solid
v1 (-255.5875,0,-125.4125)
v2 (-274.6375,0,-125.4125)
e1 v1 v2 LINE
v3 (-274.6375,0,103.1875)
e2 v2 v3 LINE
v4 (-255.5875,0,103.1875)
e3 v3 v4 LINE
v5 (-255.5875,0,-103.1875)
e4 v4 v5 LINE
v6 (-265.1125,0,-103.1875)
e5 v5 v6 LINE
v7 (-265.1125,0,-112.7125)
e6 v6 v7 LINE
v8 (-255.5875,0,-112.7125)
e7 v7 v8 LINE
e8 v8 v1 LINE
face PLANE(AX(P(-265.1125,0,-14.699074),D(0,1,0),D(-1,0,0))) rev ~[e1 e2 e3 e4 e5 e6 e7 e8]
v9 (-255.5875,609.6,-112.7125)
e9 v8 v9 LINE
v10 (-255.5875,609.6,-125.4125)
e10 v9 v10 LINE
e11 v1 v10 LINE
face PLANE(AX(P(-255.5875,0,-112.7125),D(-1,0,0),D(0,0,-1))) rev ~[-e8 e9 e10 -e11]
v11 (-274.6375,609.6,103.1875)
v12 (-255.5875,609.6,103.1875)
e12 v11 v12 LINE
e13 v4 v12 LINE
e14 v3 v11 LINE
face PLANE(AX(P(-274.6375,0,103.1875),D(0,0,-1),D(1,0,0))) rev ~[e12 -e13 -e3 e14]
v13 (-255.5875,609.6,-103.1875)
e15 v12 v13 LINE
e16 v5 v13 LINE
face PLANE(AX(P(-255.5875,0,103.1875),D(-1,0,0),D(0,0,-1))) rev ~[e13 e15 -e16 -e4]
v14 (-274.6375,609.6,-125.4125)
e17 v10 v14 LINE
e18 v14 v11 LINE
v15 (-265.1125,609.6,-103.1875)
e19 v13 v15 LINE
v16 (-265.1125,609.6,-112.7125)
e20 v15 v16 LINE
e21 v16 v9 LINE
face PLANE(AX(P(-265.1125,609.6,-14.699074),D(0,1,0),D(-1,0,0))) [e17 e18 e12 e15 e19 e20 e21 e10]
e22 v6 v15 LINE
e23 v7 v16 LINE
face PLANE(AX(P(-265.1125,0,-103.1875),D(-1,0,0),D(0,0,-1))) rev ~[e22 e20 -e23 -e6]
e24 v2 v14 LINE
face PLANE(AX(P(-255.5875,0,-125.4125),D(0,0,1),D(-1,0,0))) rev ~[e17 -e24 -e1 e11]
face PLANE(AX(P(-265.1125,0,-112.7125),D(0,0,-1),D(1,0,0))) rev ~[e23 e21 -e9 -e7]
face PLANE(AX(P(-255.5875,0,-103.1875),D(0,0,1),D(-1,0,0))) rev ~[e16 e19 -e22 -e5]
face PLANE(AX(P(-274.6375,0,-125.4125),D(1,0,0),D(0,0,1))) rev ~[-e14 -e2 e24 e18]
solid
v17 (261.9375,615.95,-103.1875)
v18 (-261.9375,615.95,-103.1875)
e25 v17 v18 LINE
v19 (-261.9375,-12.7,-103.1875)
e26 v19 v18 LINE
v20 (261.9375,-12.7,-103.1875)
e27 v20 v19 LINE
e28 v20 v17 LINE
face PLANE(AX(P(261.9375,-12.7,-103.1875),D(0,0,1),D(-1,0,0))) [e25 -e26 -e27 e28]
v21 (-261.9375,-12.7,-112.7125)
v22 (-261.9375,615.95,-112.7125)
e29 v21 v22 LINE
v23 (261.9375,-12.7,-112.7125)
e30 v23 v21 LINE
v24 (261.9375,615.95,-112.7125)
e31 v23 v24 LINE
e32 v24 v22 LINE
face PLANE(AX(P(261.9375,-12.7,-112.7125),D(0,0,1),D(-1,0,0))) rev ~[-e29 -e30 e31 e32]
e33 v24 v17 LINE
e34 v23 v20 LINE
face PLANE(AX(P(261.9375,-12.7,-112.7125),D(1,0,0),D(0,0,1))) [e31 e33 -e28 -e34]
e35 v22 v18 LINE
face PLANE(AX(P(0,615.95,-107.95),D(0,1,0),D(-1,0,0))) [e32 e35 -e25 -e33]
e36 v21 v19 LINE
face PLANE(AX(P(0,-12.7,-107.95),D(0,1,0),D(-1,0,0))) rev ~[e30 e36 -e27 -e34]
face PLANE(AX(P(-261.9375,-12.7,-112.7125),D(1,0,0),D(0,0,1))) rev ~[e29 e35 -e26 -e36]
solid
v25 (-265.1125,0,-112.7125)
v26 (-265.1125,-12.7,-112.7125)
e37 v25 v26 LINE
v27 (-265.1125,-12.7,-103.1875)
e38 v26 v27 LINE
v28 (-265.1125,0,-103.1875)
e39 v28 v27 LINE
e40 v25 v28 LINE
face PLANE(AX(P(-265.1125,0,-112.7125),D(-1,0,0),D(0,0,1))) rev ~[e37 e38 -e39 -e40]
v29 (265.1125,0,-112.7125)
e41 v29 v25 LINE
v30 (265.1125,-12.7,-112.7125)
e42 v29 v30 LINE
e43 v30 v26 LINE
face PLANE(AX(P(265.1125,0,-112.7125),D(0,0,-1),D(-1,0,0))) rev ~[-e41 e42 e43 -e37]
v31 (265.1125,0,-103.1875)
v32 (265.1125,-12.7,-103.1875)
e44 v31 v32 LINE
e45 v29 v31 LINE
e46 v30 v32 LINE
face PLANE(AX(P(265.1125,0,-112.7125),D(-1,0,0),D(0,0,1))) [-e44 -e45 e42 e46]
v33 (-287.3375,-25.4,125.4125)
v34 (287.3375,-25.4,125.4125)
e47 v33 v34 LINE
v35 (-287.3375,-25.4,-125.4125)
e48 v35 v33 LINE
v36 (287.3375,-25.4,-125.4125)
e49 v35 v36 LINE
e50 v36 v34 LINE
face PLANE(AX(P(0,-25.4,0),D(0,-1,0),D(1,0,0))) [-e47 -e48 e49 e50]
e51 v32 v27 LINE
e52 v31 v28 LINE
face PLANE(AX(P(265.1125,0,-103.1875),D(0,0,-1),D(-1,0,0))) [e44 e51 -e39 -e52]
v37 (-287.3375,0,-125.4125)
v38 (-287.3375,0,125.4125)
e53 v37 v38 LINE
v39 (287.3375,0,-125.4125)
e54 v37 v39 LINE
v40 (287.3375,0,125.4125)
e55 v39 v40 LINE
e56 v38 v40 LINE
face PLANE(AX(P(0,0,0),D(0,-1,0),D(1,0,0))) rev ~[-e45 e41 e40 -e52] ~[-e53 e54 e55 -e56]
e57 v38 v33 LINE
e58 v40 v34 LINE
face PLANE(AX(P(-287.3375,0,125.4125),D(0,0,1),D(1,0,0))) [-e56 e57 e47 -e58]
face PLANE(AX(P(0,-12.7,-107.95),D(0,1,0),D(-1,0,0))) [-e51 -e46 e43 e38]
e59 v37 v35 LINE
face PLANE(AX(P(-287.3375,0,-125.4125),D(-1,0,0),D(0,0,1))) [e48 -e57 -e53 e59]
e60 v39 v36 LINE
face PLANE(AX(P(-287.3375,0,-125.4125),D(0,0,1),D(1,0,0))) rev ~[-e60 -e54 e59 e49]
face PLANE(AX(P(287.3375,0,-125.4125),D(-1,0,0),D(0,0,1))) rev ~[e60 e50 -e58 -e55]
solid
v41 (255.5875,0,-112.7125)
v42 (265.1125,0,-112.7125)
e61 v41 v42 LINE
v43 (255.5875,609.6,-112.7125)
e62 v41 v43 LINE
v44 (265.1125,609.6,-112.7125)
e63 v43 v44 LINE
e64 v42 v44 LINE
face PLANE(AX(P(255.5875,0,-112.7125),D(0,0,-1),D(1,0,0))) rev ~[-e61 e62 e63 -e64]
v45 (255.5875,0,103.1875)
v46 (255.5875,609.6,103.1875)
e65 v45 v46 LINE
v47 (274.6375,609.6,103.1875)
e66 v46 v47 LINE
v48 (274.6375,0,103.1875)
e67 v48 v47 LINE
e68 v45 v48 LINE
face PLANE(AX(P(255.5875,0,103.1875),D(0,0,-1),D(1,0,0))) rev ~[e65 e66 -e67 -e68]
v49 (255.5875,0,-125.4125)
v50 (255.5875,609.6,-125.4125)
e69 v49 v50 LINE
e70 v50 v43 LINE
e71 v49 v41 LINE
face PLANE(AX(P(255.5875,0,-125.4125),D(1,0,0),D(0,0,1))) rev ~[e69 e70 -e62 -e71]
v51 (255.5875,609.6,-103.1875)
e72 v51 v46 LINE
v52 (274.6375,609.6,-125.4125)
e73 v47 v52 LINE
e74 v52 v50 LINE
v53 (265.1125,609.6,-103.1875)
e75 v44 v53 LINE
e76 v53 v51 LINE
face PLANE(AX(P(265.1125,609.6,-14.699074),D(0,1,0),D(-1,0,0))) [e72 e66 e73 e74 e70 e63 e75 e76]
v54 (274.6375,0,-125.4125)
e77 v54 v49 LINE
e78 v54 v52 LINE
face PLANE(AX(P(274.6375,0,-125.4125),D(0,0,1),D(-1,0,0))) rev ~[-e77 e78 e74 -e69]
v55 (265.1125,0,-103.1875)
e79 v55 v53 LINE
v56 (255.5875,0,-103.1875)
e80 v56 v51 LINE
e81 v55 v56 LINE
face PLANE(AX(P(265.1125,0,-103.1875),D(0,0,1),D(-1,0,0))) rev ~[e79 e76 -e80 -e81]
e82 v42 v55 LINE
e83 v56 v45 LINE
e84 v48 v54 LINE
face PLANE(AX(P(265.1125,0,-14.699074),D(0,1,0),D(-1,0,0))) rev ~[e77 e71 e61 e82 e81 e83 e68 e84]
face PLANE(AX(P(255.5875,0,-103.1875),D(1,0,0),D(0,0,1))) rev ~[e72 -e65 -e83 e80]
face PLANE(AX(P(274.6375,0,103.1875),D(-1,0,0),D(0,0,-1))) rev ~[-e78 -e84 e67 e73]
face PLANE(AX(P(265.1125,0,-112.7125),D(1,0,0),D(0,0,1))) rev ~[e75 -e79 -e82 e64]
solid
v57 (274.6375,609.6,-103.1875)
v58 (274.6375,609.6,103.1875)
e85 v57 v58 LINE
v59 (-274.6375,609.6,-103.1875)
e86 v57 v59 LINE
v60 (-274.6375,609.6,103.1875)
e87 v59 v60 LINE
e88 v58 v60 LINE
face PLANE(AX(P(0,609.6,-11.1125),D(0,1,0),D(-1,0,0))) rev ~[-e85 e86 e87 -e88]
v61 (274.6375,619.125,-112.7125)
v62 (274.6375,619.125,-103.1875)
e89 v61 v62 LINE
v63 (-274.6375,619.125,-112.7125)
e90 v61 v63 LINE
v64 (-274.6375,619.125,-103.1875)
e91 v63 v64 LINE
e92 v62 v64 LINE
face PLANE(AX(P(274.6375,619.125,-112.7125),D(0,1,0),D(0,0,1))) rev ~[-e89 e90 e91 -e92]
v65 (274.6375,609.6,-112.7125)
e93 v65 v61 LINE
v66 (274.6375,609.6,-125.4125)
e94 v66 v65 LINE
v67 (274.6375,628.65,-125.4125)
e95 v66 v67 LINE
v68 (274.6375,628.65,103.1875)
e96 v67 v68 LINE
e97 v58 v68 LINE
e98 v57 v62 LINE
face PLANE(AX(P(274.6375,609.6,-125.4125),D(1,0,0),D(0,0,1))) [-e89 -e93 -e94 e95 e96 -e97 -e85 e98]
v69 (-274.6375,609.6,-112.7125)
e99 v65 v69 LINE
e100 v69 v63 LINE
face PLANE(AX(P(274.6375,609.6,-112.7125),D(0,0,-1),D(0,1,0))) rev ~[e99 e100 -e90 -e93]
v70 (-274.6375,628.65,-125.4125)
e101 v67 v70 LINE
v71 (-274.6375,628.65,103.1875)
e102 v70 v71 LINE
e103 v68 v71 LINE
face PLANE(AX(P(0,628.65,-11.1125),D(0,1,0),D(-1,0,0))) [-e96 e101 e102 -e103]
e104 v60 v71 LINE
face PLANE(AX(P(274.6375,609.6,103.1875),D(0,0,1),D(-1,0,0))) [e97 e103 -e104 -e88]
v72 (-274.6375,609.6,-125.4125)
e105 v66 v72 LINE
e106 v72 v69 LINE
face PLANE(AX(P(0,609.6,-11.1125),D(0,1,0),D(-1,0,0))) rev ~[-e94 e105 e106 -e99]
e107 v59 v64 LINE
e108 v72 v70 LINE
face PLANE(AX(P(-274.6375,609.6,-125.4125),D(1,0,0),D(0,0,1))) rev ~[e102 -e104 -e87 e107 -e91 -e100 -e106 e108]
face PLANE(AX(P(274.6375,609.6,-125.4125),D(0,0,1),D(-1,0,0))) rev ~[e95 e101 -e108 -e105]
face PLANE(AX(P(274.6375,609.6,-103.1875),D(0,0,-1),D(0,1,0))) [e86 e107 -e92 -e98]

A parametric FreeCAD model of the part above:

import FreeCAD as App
import Part
import Sketcher

V = App.Vector
Q = App.Units.Quantity

doc = App.newDocument("Part")
body = doc.addObject("PartDesign::Body", "Body")

sketch1 = body.newObject("Sketcher::SketchObject", "Sketch")
sketch1.AttachmentSupport = (doc.getObject("XZ_Plane"), [""])
sketch1.MapMode = "FlatFace"
sketch1.addGeometry([
    Part.LineSegment(V(-287, 125, 0), V(-287, -125, 0)),
    Part.LineSegment(V(-287, -125, 0), V(287, -125, 0)),
    Part.LineSegment(V(287, -125, 0), V(287, 125, 0)),
    Part.LineSegment(V(287, 125, 0), V(-287, 125, 0)),
], False)
sketch1.addConstraint([
    Sketcher.Constraint("Coincident", 0, 2, 1, 1),
    Sketcher.Constraint("Coincident", 1, 2, 2, 1),
    Sketcher.Constraint("Coincident", 2, 2, 3, 1),
    Sketcher.Constraint("Coincident", 3, 2, 0, 1),
    Sketcher.Constraint("Vertical", 0),
    Sketcher.Constraint("Horizontal", 1),
    Sketcher.Constraint("Vertical", 2),
    Sketcher.Constraint("Horizontal", 3),
    Sketcher.Constraint("Symmetric", 0, 2, 2, 2, -1, 1),
    Sketcher.Constraint("DistanceX", 1, 1, 1, 2, Q("22.625 in")),
    Sketcher.Constraint("DistanceY", 0, 2, 0, 1, Q("9.875 in")),
])
pad1 = body.newObject("PartDesign::Pad", "Pad")
pad1.Profile = sketch1
pad1.Length = Q("1 in")

sketch2 = body.newObject("Sketcher::SketchObject", "Sketch001")
sketch2.AttachmentSupport = (doc.getObject("XZ_Plane"), [""])
sketch2.MapMode = "FlatFace"
sketch2.addGeometry([
    Part.LineSegment(V(265, -103, 0), V(265, -113, 0)),
    Part.LineSegment(V(265, -113, 0), V(-265, -113, 0)),
    Part.LineSegment(V(-265, -113, 0), V(-265, -103, 0)),
    Part.LineSegment(V(-265, -103, 0), V(265, -103, 0)),
], False)
sketch2.addConstraint([
    Sketcher.Constraint("Coincident", 0, 2, 1, 1),
    Sketcher.Constraint("Coincident", 1, 2, 2, 1),
    Sketcher.Constraint("Coincident", 2, 2, 3, 1),
    Sketcher.Constraint("Coincident", 3, 2, 0, 1),
    Sketcher.Constraint("Vertical", 0),
    Sketcher.Constraint("Horizontal", 1),
    Sketcher.Constraint("Vertical", 2),
    Sketcher.Constraint("Horizontal", 3),
    Sketcher.Constraint("DistanceX", 1, 2, 1, 1, Q("20.875 in")),
    Sketcher.Constraint("DistanceY", 0, 2, 0, 1, Q("0.375 in")),
    Sketcher.Constraint("DistanceX", -1, 1, 0, 2, Q("10.4375 in")),
    Sketcher.Constraint("DistanceY", 0, 2, -1, 1, Q("4.4375 in")),
])
pocket1 = body.newObject("PartDesign::Pocket", "Pocket")
pocket1.Profile = sketch2
pocket1.Length = Q("0.5 in")
pocket1.Reversed = True
body2 = doc.addObject("PartDesign::Body", "Body001")

sketch3 = body2.newObject("Sketcher::SketchObject", "Sketch002")
sketch3.AttachmentSupport = (doc.getObject("XZ_Plane001"), [""])
sketch3.MapMode = "FlatFace"
sketch3.addGeometry([
    Part.LineSegment(V(256, 103, 0), V(275, 103, 0)),
    Part.LineSegment(V(275, 103, 0), V(275, -125, 0)),
    Part.LineSegment(V(275, -125, 0), V(256, -125, 0)),
    Part.LineSegment(V(256, -125, 0), V(256, -113, 0)),
    Part.LineSegment(V(256, -113, 0), V(265, -113, 0)),
    Part.LineSegment(V(265, -113, 0), V(265, -103, 0)),
    Part.LineSegment(V(265, -103, 0), V(256, -103, 0)),
    Part.LineSegment(V(256, -103, 0), V(256, 103, 0)),
], False)
sketch3.addConstraint([
    Sketcher.Constraint("Coincident", 0, 2, 1, 1),
    Sketcher.Constraint("Coincident", 1, 2, 2, 1),
    Sketcher.Constraint("Coincident", 2, 2, 3, 1),
    Sketcher.Constraint("Coincident", 3, 2, 4, 1),
    Sketcher.Constraint("Coincident", 4, 2, 5, 1),
    Sketcher.Constraint("Coincident", 5, 2, 6, 1),
    Sketcher.Constraint("Coincident", 6, 2, 7, 1),
    Sketcher.Constraint("Coincident", 7, 2, 0, 1),
    Sketcher.Constraint("Horizontal", 0),
    Sketcher.Constraint("Vertical", 1),
    Sketcher.Constraint("Horizontal", 2),
    Sketcher.Constraint("Vertical", 3),
    Sketcher.Constraint("Horizontal", 4),
    Sketcher.Constraint("Vertical", 5),
    Sketcher.Constraint("Horizontal", 6),
    Sketcher.Constraint("Vertical", 7),
    Sketcher.Constraint("Vertical", 3, 2, 6, 2),
    Sketcher.Constraint("Equal", 6, 5),
    Sketcher.Constraint("DistanceY", 1, 2, 1, 1, Q("9 in")),
    Sketcher.Constraint("DistanceY", 3, 1, 3, 2, Q("0.5 in")),
    Sketcher.Constraint("DistanceX", 0, 1, 0, 2, Q("0.75 in")),
    Sketcher.Constraint("DistanceX", 4, 1, 4, 2, Q("0.375 in")),
    Sketcher.Constraint("DistanceX", -1, 1, 0, 2, Q("10.8125 in")),
    Sketcher.Constraint("DistanceY", -1, 1, 0, 2, Q("4.0625 in")),
])
pad2 = body2.newObject("PartDesign::Pad", "Pad001")
pad2.Profile = sketch3
pad2.Length = Q("24 in")
pad2.Reversed = True
body3 = doc.addObject("PartDesign::Body", "Body002")

sketch4 = body3.newObject("Sketcher::SketchObject", "Sketch003")
sketch4.AttachmentSupport = (doc.getObject("XZ_Plane002"), [""])
sketch4.MapMode = "FlatFace"
sketch4.addGeometry([
    Part.LineSegment(V(-275, -125, 0), V(-275, 103, 0)),
    Part.LineSegment(V(-275, 103, 0), V(-256, 103, 0)),
    Part.LineSegment(V(-256, 103, 0), V(-256, -103, 0)),
    Part.LineSegment(V(-256, -103, 0), V(-265, -103, 0)),
    Part.LineSegment(V(-265, -103, 0), V(-265, -113, 0)),
    Part.LineSegment(V(-265, -113, 0), V(-256, -113, 0)),
    Part.LineSegment(V(-256, -113, 0), V(-256, -125, 0)),
    Part.LineSegment(V(-256, -125, 0), V(-275, -125, 0)),
], False)
sketch4.addConstraint([
    Sketcher.Constraint("Coincident", 0, 2, 1, 1),
    Sketcher.Constraint("Coincident", 1, 2, 2, 1),
    Sketcher.Constraint("Coincident", 2, 2, 3, 1),
    Sketcher.Constraint("Coincident", 3, 2, 4, 1),
    Sketcher.Constraint("Coincident", 4, 2, 5, 1),
    Sketcher.Constraint("Coincident", 5, 2, 6, 1),
    Sketcher.Constraint("Coincident", 6, 2, 7, 1),
    Sketcher.Constraint("Coincident", 7, 2, 0, 1),
    Sketcher.Constraint("Vertical", 0),
    Sketcher.Constraint("Horizontal", 1),
    Sketcher.Constraint("Vertical", 2),
    Sketcher.Constraint("Horizontal", 3),
    Sketcher.Constraint("Vertical", 4),
    Sketcher.Constraint("Horizontal", 5),
    Sketcher.Constraint("Vertical", 6),
    Sketcher.Constraint("Horizontal", 7),
    Sketcher.Constraint("Vertical", 2, 2, 5, 2),
    Sketcher.Constraint("Equal", 5, 4),
    Sketcher.Constraint("DistanceY", 0, 1, 0, 2, Q("9 in")),
    Sketcher.Constraint("DistanceY", 6, 2, 6, 1, Q("0.5 in")),
    Sketcher.Constraint("DistanceX", 1, 1, 1, 2, Q("0.75 in")),
    Sketcher.Constraint("DistanceX", 3, 2, 3, 1, Q("0.375 in")),
    Sketcher.Constraint("DistanceX", 0, 2, -1, 1, Q("10.8125 in")),
    Sketcher.Constraint("DistanceY", -1, 1, 0, 2, Q("4.0625 in")),
])
pad3 = body3.newObject("PartDesign::Pad", "Pad002")
pad3.Profile = sketch4
pad3.Length = Q("24 in")
pad3.Reversed = True
body4 = doc.addObject("PartDesign::Body", "Body003")

sketch5 = body4.newObject("Sketcher::SketchObject", "Sketch004")
sketch5.AttachmentSupport = (doc.getObject("XZ_Plane003"), [""])
sketch5.MapMode = "FlatFace"
sketch5.AttachmentOffset = App.Placement(V(0, 0, 0.5 * 25.4), App.Rotation())
sketch5.addGeometry([
    Part.LineSegment(V(262, -103, 0), V(262, -113, 0)),
    Part.LineSegment(V(262, -113, 0), V(-262, -113, 0)),
    Part.LineSegment(V(-262, -113, 0), V(-262, -103, 0)),
    Part.LineSegment(V(-262, -103, 0), V(262, -103, 0)),
], False)
sketch5.addConstraint([
    Sketcher.Constraint("Coincident", 0, 2, 1, 1),
    Sketcher.Constraint("Coincident", 1, 2, 2, 1),
    Sketcher.Constraint("Coincident", 2, 2, 3, 1),
    Sketcher.Constraint("Coincident", 3, 2, 0, 1),
    Sketcher.Constraint("Vertical", 0),
    Sketcher.Constraint("Horizontal", 1),
    Sketcher.Constraint("Vertical", 2),
    Sketcher.Constraint("Horizontal", 3),
    Sketcher.Constraint("DistanceX", 1, 2, 1, 1, Q("20.625 in")),
    Sketcher.Constraint("DistanceY", 0, 2, 0, 1, Q("0.375 in")),
    Sketcher.Constraint("DistanceX", -1, 1, 0, 2, Q("10.3125 in")),
    Sketcher.Constraint("DistanceY", 0, 2, -1, 1, Q("4.4375 in")),
])
pad4 = body4.newObject("PartDesign::Pad", "Pad003")
pad4.Profile = sketch5
pad4.Length = Q("24.75 in")
pad4.Reversed = True
body5 = doc.addObject("PartDesign::Body", "Body004")

sketch6 = body5.newObject("Sketcher::SketchObject", "Sketch005")
sketch6.AttachmentSupport = (doc.getObject("XZ_Plane004"), [""])
sketch6.MapMode = "FlatFace"
sketch6.AttachmentOffset = App.Placement(V(0, 0, -24 * 25.4), App.Rotation())
sketch6.addGeometry([
    Part.LineSegment(V(275, 103, 0), V(275, -125, 0)),
    Part.LineSegment(V(275, -125, 0), V(-275, -125, 0)),
    Part.LineSegment(V(-275, -125, 0), V(-275, 103, 0)),
    Part.LineSegment(V(-275, 103, 0), V(275, 103, 0)),
], False)
sketch6.addConstraint([
    Sketcher.Constraint("Coincident", 0, 2, 1, 1),
    Sketcher.Constraint("Coincident", 1, 2, 2, 1),
    Sketcher.Constraint("Coincident", 2, 2, 3, 1),
    Sketcher.Constraint("Coincident", 3, 2, 0, 1),
    Sketcher.Constraint("Vertical", 0),
    Sketcher.Constraint("Horizontal", 1),
    Sketcher.Constraint("Vertical", 2),
    Sketcher.Constraint("Horizontal", 3),
    Sketcher.Constraint("DistanceY", 0, 2, 0, 1, Q("9 in")),
    Sketcher.Constraint("DistanceX", 1, 2, 1, 1, Q("21.625 in")),
    Sketcher.Constraint("DistanceX", -1, 1, 0, 2, Q("10.8125 in")),
    Sketcher.Constraint("DistanceY", 0, 2, -1, 1, Q("4.9375 in")),
])
pad5 = body5.newObject("PartDesign::Pad", "Pad004")
pad5.Profile = sketch6
pad5.Length = Q("0.75 in")
pad5.Reversed = True

sketch7 = body5.newObject("Sketcher::SketchObject", "Sketch006")
sketch7.AttachmentSupport = (doc.getObject("YZ_Plane004"), [""])
sketch7.MapMode = "FlatFace"
sketch7.AttachmentOffset = App.Placement(V(0, 0, 10.8125 * 25.4), App.Rotation())
sketch7.addGeometry([
    Part.LineSegment(V(610, -103, 0), V(610, -113, 0)),
    Part.LineSegment(V(610, -113, 0), V(619, -113, 0)),
    Part.LineSegment(V(619, -113, 0), V(619, -103, 0)),
    Part.LineSegment(V(619, -103, 0), V(610, -103, 0)),
], False)
sketch7.addConstraint([
    Sketcher.Constraint("Coincident", 0, 2, 1, 1),
    Sketcher.Constraint("Coincident", 1, 2, 2, 1),
    Sketcher.Constraint("Coincident", 2, 2, 3, 1),
    Sketcher.Constraint("Coincident", 3, 2, 0, 1),
    Sketcher.Constraint("Vertical", 0),
    Sketcher.Constraint("Horizontal", 1),
    Sketcher.Constraint("Vertical", 2),
    Sketcher.Constraint("Horizontal", 3),
    Sketcher.Constraint("Equal", 3, 0),
    Sketcher.Constraint("DistanceX", -1, 1, 0, 2, Q("24 in")),
    Sketcher.Constraint("DistanceX", 1, 1, 1, 2, Q("0.375 in")),
    Sketcher.Constraint("DistanceY", 0, 2, -1, 1, Q("4.4375 in")),
])
pocket2 = body5.newObject("PartDesign::Pocket", "Pocket001")
pocket2.Profile = sketch7
pocket2.Length = Q("23 in")

doc.recompute()
